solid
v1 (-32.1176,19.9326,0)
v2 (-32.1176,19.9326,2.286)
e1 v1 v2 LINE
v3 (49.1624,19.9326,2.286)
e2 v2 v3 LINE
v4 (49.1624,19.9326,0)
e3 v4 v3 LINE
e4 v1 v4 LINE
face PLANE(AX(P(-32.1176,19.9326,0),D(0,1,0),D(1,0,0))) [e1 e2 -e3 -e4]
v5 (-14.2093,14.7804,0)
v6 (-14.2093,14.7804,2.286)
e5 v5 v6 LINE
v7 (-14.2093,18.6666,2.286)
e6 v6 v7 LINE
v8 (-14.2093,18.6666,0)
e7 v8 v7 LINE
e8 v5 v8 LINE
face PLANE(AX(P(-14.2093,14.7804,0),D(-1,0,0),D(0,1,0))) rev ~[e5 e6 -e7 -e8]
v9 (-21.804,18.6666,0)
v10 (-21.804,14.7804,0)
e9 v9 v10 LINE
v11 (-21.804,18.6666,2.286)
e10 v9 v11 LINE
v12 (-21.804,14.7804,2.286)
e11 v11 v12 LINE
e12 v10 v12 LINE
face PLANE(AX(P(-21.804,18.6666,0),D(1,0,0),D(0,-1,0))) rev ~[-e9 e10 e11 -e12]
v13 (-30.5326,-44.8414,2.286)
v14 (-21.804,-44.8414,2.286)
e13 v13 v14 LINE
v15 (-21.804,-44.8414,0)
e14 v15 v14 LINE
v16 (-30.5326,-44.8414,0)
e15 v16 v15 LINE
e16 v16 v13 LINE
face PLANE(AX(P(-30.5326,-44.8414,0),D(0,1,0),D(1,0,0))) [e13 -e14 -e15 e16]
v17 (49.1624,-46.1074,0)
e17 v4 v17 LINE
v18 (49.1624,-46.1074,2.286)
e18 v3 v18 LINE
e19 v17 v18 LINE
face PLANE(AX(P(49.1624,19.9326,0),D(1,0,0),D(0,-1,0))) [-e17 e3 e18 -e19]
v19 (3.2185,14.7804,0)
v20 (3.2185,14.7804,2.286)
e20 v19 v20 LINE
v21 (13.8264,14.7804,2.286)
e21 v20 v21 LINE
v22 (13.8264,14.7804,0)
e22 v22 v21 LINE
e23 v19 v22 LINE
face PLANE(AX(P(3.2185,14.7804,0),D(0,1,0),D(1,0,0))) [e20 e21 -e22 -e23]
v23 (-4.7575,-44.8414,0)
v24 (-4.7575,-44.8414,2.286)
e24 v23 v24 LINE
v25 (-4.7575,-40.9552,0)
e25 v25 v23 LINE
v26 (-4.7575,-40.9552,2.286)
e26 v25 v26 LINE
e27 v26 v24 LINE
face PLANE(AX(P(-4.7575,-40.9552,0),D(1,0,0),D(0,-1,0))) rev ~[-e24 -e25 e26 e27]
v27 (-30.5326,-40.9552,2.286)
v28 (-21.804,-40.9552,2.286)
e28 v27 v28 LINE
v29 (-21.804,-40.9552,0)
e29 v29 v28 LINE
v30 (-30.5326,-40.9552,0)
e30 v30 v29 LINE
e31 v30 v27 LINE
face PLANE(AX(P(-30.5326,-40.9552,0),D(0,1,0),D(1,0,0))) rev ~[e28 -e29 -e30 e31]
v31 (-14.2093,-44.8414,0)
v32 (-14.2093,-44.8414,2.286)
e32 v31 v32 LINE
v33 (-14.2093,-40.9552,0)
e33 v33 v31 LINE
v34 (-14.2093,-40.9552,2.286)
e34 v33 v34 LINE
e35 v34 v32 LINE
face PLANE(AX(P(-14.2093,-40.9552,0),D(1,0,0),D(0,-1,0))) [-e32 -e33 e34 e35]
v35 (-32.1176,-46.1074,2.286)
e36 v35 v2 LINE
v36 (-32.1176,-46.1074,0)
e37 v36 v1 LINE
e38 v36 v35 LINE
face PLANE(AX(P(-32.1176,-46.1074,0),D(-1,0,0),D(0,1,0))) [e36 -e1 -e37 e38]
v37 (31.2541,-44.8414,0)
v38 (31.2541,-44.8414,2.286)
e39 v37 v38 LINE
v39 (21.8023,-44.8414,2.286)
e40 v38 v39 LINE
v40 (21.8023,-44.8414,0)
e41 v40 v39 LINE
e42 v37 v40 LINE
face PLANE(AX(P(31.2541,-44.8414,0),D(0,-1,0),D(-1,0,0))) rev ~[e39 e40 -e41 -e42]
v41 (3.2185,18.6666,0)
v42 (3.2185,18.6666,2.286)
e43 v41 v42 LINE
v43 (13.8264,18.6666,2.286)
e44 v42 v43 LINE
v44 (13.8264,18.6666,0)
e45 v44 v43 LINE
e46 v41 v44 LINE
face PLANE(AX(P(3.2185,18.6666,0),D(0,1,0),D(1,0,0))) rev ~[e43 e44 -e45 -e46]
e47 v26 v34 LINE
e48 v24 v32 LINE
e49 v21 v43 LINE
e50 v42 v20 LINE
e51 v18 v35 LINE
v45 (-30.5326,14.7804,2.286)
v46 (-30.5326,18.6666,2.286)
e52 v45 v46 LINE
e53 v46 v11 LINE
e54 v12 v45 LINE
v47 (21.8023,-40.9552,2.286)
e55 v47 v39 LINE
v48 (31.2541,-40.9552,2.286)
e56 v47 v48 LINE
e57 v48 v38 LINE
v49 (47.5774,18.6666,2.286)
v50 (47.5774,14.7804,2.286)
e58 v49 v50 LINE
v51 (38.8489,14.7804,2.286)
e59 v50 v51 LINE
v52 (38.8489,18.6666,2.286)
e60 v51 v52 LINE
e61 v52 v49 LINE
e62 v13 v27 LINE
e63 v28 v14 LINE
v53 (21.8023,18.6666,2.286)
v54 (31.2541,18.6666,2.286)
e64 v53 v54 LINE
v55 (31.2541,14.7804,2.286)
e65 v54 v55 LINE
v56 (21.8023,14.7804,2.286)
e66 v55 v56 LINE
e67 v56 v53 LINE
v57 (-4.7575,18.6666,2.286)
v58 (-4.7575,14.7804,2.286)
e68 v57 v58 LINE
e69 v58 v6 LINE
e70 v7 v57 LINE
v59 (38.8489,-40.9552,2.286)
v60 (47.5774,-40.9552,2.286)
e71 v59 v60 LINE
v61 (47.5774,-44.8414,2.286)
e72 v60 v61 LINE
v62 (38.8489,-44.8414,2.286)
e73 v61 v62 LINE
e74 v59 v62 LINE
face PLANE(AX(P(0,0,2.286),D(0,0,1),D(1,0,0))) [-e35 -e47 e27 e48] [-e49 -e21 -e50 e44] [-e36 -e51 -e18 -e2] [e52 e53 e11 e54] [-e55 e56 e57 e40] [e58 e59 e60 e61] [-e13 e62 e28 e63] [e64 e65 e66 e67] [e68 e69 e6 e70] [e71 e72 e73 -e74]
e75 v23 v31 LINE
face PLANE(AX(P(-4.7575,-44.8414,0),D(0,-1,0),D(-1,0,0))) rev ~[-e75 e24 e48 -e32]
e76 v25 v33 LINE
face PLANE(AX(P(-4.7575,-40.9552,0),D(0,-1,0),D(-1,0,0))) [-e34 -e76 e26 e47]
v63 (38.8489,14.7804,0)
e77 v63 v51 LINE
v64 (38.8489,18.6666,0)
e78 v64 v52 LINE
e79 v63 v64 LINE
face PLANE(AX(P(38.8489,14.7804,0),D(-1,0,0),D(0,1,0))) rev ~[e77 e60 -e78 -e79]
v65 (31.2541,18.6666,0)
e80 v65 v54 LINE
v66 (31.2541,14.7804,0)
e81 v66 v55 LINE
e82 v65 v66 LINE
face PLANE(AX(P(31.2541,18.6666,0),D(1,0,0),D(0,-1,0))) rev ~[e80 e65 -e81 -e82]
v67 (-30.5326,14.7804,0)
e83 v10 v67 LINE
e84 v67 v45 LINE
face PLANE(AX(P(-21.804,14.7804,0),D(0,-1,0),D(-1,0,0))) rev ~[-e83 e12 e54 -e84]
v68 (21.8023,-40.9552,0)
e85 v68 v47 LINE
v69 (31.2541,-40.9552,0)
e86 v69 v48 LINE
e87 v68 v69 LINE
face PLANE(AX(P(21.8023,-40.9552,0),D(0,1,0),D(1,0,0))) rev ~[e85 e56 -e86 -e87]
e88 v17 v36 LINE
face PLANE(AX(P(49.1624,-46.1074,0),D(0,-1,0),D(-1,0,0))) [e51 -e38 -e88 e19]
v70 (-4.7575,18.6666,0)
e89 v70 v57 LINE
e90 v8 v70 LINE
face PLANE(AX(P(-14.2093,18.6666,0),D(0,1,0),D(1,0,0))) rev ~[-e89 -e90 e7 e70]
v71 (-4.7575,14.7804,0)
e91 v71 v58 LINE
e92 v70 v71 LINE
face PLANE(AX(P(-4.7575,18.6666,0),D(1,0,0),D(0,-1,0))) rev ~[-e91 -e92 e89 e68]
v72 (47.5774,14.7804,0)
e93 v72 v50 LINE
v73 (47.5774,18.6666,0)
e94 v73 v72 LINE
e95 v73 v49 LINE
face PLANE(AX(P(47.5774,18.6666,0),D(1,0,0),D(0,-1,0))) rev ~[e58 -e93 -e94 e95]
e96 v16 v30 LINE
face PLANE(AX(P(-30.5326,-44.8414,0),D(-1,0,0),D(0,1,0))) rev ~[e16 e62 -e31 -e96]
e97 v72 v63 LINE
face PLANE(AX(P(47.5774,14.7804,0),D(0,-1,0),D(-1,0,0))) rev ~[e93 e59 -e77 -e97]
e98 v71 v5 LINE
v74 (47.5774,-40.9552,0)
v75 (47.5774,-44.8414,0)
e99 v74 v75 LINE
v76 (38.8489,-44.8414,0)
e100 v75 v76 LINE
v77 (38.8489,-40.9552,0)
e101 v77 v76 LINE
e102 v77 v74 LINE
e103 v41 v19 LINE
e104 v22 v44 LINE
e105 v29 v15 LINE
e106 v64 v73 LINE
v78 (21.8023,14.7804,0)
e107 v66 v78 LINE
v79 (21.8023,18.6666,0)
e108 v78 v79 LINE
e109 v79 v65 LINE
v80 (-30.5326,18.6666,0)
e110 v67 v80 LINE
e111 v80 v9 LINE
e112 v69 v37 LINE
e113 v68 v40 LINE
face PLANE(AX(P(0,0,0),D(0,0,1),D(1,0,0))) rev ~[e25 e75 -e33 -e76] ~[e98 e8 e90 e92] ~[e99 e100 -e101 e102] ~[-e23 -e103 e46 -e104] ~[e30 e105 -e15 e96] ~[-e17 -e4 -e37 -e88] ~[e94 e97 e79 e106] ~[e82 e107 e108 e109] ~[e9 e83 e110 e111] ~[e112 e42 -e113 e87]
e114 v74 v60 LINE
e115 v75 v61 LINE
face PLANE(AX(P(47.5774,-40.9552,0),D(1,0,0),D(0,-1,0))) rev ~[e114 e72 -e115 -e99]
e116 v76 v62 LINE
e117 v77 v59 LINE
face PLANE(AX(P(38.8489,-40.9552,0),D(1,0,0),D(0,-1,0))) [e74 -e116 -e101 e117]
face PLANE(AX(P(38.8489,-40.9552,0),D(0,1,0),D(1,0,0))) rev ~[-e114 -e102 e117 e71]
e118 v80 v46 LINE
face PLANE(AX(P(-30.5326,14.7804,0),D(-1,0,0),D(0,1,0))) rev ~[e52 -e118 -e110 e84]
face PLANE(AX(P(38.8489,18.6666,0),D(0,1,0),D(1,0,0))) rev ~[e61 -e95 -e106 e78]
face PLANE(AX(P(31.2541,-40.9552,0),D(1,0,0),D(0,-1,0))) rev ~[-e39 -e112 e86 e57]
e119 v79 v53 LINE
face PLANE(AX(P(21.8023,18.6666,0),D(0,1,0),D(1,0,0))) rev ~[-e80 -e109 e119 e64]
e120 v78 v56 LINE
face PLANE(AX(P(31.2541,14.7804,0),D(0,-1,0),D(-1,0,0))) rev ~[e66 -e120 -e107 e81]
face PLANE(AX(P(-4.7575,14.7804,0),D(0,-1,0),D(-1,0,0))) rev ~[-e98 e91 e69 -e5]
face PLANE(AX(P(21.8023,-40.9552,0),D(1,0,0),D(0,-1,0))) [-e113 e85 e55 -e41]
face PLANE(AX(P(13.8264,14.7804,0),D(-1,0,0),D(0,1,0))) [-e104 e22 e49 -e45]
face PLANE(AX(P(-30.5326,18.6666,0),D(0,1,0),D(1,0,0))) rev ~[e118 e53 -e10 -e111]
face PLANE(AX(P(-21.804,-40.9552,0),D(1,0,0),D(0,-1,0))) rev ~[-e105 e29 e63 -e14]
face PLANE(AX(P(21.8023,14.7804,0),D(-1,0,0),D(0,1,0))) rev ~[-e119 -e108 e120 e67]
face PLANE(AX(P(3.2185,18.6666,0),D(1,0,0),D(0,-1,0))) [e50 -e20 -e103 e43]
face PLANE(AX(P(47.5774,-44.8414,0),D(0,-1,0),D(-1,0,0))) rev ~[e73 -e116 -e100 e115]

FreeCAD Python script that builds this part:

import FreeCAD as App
import Part
import Sketcher
Q = App.Units.Quantity


def add_polygon(sketch, points):
    """Adds a closed chain of lines whose ends are joined by coincident constraints."""
    first, n = sketch.GeometryCount, len(points)
    for a, b in zip(points, points[1:] + points[:1]):
        sketch.addGeometry(Part.LineSegment(App.Vector(*a, 0), App.Vector(*b, 0)), False)
    for i in range(n):
        sketch.addConstraint(Sketcher.Constraint("Coincident", first + i, 2, first + (i + 1) % n, 1))

doc = App.newDocument("Part")
body = doc.addObject("PartDesign::Body", "Body")

sketch1 = body.newObject("Sketcher::SketchObject", "Sketch")
sketch1.AttachmentSupport = (doc.getObject("XY_Plane"), [""])
sketch1.MapMode = "FlatFace"
add_polygon(sketch1, [(-32.1, -46.1), (49.2, -46.1), (49.2, 19.9), (-32.1, 19.9)])
add_polygon(sketch1, [(-30.5, -41), (-21.8, -41), (-21.8, -44.8), (-30.5, -44.8)])
add_polygon(sketch1, [(-4.8, -41), (-4.8, -44.8), (-14.2, -44.8), (-14.2, -41)])
add_polygon(sketch1, [(31.3, -41), (31.3, -44.8), (21.8, -44.8), (21.8, -41)])
add_polygon(sketch1, [(47.6, -41), (47.6, -44.8), (38.8, -44.8), (38.8, -41)])
add_polygon(sketch1, [(-30.5, 18.7), (-21.8, 18.7), (-21.8, 14.8), (-30.5, 14.8)])
add_polygon(sketch1, [(-4.8, 18.7), (-4.8, 14.8), (-14.2, 14.8), (-14.2, 18.7)])
add_polygon(sketch1, [(13.8, 14.8), (3.2, 14.8), (3.2, 18.7), (13.8, 18.7)])
add_polygon(sketch1, [(31.3, 18.7), (31.3, 14.8), (21.8, 14.8), (21.8, 18.7)])
add_polygon(sketch1, [(47.6, 18.7), (47.6, 14.8), (38.8, 14.8), (38.8, 18.7)])
sketch1.addConstraint(Sketcher.Constraint("Horizontal", 0))
sketch1.addConstraint(Sketcher.Constraint("Vertical", 1))
sketch1.addConstraint(Sketcher.Constraint("Horizontal", 2))
sketch1.addConstraint(Sketcher.Constraint("Vertical", 3))
sketch1.addConstraint(Sketcher.Constraint("Horizontal", 4))
sketch1.addConstraint(Sketcher.Constraint("Vertical", 5))
sketch1.addConstraint(Sketcher.Constraint("Horizontal", 6))
sketch1.addConstraint(Sketcher.Constraint("Vertical", 7))
sketch1.addConstraint(Sketcher.Constraint("Vertical", 8))
sketch1.addConstraint(Sketcher.Constraint("Horizontal", 9))
sketch1.addConstraint(Sketcher.Constraint("Vertical", 10))
sketch1.addConstraint(Sketcher.Constraint("Horizontal", 11))
sketch1.addConstraint(Sketcher.Constraint("Vertical", 12))
sketch1.addConstraint(Sketcher.Constraint("Horizontal", 13))
sketch1.addConstraint(Sketcher.Constraint("Vertical", 14))
sketch1.addConstraint(Sketcher.Constraint("Horizontal", 15))
sketch1.addConstraint(Sketcher.Constraint("Vertical", 16))
sketch1.addConstraint(Sketcher.Constraint("Horizontal", 17))
sketch1.addConstraint(Sketcher.Constraint("Vertical", 18))
sketch1.addConstraint(Sketcher.Constraint("Horizontal", 19))
sketch1.addConstraint(Sketcher.Constraint("Horizontal", 20))
sketch1.addConstraint(Sketcher.Constraint("Vertical", 21))
sketch1.addConstraint(Sketcher.Constraint("Horizontal", 22))
sketch1.addConstraint(Sketcher.Constraint("Vertical", 23))
sketch1.addConstraint(Sketcher.Constraint("Vertical", 24))
sketch1.addConstraint(Sketcher.Constraint("Horizontal", 25))
sketch1.addConstraint(Sketcher.Constraint("Vertical", 26))
sketch1.addConstraint(Sketcher.Constraint("Horizontal", 27))
sketch1.addConstraint(Sketcher.Constraint("Horizontal", 28))
sketch1.addConstraint(Sketcher.Constraint("Vertical", 29))
sketch1.addConstraint(Sketcher.Constraint("Horizontal", 30))
sketch1.addConstraint(Sketcher.Constraint("Vertical", 31))
sketch1.addConstraint(Sketcher.Constraint("Vertical", 32))
sketch1.addConstraint(Sketcher.Constraint("Horizontal", 33))
sketch1.addConstraint(Sketcher.Constraint("Vertical", 34))
sketch1.addConstraint(Sketcher.Constraint("Horizontal", 35))
sketch1.addConstraint(Sketcher.Constraint("Vertical", 36))
sketch1.addConstraint(Sketcher.Constraint("Horizontal", 37))
sketch1.addConstraint(Sketcher.Constraint("Vertical", 38))
sketch1.addConstraint(Sketcher.Constraint("Horizontal", 39))
sketch1.addConstraint(Sketcher.Constraint("Horizontal", 6, 2, 8, 2))
sketch1.addConstraint(Sketcher.Constraint("Horizontal", 7, 2, 10, 2))
sketch1.addConstraint(Sketcher.Constraint("Horizontal", 9, 2, 12, 2))
sketch1.addConstraint(Sketcher.Constraint("Horizontal", 11, 2, 14, 2))
sketch1.addConstraint(Sketcher.Constraint("Horizontal", 13, 2, 16, 2))
sketch1.addConstraint(Sketcher.Constraint("Horizontal", 15, 2, 18, 2))
sketch1.addConstraint(Sketcher.Constraint("Horizontal", 22, 2, 24, 2))
sketch1.addConstraint(Sketcher.Constraint("Horizontal", 23, 2, 26, 2))
sketch1.addConstraint(Sketcher.Constraint("Horizontal", 25, 2, 28, 2))
sketch1.addConstraint(Sketcher.Constraint("Horizontal", 27, 2, 29, 2))
sketch1.addConstraint(Sketcher.Constraint("Horizontal", 31, 2, 32, 2))
sketch1.addConstraint(Sketcher.Constraint("Horizontal", 30, 2, 34, 2))
sketch1.addConstraint(Sketcher.Constraint("Horizontal", 33, 2, 36, 2))
sketch1.addConstraint(Sketcher.Constraint("Horizontal", 35, 2, 38, 2))
sketch1.addConstraint(Sketcher.Constraint("Vertical", 5, 2, 20, 2))
sketch1.addConstraint(Sketcher.Constraint("Vertical", 7, 2, 22, 2))
sketch1.addConstraint(Sketcher.Constraint("Vertical", 11, 2, 24, 2))
sketch1.addConstraint(Sketcher.Constraint("Vertical", 10, 2, 25, 2))
sketch1.addConstraint(Sketcher.Constraint("Vertical", 15, 2, 32, 2))
sketch1.addConstraint(Sketcher.Constraint("Vertical", 14, 2, 33, 2))
sketch1.addConstraint(Sketcher.Constraint("Vertical", 19, 2, 36, 2))
sketch1.addConstraint(Sketcher.Constraint("Vertical", 18, 2, 37, 2))
sketch1.addConstraint(Sketcher.Constraint("Equal", 11, 13))
sketch1.addConstraint(Sketcher.Constraint("Equal", 6, 17))
sketch1.addConstraint(Sketcher.Constraint("Equal", 18, 21))
sketch1.addConstraint(Sketcher.Constraint("DistanceX", 0, 1, 0, 2, Q("3.2 in")))
sketch1.addConstraint(Sketcher.Constraint("DistanceY", 1, 1, 1, 2, Q("2.6 in")))
sketch1.addConstraint(Sketcher.Constraint("DistanceY", 5, 2, 5, 1, Q("0.153 in")))
sketch1.addConstraint(Sketcher.Constraint("DistanceX", 5, 2, 9, 2, Q("0.299 in")))
sketch1.addConstraint(Sketcher.Constraint("DistanceX", 12, 2, 17, 2, Q("0.299 in")))
sketch1.addConstraint(Sketcher.Constraint("DistanceX", 31, 2, 33, 2, Q("0.314 in")))
sketch1.addConstraint(Sketcher.Constraint("DistanceX", 4, 1, 4, 2, Q("8.7286 mm")))
sketch1.addConstraint(Sketcher.Constraint("DistanceX", 9, 2, 9, 1, Q("9.4518 mm")))
sketch1.addConstraint(Sketcher.Constraint("DistanceX", 28, 2, 28, 1, Q("10.608 mm")))
sketch1.addConstraint(Sketcher.Constraint("DistanceY", 4, 2, -1, 1, Q("1.6124 in")))
sketch1.addConstraint(Sketcher.Constraint("DistanceX", 8, 2, -1, 1, Q("0.1873 in")))
sketch1.addConstraint(Sketcher.Constraint("DistanceY", -1, 1, 20, 2, Q("0.7349 in")))
sketch1.addConstraint(Sketcher.Constraint("DistanceX", 3, 2, 6, 2, Q("0.0624 in")))
sketch1.addConstraint(Sketcher.Constraint("DistanceX", 9, 2, 12, 2, Q("1.7899 in")))
sketch1.addConstraint(Sketcher.Constraint("DistanceY", 0, 2, -1, 1, Q("46.1074 mm")))
pad1 = body.newObject("PartDesign::Pad", "Pad")
pad1.Profile = sketch1
pad1.Length = Q("0.09 in")

doc.recompute()
